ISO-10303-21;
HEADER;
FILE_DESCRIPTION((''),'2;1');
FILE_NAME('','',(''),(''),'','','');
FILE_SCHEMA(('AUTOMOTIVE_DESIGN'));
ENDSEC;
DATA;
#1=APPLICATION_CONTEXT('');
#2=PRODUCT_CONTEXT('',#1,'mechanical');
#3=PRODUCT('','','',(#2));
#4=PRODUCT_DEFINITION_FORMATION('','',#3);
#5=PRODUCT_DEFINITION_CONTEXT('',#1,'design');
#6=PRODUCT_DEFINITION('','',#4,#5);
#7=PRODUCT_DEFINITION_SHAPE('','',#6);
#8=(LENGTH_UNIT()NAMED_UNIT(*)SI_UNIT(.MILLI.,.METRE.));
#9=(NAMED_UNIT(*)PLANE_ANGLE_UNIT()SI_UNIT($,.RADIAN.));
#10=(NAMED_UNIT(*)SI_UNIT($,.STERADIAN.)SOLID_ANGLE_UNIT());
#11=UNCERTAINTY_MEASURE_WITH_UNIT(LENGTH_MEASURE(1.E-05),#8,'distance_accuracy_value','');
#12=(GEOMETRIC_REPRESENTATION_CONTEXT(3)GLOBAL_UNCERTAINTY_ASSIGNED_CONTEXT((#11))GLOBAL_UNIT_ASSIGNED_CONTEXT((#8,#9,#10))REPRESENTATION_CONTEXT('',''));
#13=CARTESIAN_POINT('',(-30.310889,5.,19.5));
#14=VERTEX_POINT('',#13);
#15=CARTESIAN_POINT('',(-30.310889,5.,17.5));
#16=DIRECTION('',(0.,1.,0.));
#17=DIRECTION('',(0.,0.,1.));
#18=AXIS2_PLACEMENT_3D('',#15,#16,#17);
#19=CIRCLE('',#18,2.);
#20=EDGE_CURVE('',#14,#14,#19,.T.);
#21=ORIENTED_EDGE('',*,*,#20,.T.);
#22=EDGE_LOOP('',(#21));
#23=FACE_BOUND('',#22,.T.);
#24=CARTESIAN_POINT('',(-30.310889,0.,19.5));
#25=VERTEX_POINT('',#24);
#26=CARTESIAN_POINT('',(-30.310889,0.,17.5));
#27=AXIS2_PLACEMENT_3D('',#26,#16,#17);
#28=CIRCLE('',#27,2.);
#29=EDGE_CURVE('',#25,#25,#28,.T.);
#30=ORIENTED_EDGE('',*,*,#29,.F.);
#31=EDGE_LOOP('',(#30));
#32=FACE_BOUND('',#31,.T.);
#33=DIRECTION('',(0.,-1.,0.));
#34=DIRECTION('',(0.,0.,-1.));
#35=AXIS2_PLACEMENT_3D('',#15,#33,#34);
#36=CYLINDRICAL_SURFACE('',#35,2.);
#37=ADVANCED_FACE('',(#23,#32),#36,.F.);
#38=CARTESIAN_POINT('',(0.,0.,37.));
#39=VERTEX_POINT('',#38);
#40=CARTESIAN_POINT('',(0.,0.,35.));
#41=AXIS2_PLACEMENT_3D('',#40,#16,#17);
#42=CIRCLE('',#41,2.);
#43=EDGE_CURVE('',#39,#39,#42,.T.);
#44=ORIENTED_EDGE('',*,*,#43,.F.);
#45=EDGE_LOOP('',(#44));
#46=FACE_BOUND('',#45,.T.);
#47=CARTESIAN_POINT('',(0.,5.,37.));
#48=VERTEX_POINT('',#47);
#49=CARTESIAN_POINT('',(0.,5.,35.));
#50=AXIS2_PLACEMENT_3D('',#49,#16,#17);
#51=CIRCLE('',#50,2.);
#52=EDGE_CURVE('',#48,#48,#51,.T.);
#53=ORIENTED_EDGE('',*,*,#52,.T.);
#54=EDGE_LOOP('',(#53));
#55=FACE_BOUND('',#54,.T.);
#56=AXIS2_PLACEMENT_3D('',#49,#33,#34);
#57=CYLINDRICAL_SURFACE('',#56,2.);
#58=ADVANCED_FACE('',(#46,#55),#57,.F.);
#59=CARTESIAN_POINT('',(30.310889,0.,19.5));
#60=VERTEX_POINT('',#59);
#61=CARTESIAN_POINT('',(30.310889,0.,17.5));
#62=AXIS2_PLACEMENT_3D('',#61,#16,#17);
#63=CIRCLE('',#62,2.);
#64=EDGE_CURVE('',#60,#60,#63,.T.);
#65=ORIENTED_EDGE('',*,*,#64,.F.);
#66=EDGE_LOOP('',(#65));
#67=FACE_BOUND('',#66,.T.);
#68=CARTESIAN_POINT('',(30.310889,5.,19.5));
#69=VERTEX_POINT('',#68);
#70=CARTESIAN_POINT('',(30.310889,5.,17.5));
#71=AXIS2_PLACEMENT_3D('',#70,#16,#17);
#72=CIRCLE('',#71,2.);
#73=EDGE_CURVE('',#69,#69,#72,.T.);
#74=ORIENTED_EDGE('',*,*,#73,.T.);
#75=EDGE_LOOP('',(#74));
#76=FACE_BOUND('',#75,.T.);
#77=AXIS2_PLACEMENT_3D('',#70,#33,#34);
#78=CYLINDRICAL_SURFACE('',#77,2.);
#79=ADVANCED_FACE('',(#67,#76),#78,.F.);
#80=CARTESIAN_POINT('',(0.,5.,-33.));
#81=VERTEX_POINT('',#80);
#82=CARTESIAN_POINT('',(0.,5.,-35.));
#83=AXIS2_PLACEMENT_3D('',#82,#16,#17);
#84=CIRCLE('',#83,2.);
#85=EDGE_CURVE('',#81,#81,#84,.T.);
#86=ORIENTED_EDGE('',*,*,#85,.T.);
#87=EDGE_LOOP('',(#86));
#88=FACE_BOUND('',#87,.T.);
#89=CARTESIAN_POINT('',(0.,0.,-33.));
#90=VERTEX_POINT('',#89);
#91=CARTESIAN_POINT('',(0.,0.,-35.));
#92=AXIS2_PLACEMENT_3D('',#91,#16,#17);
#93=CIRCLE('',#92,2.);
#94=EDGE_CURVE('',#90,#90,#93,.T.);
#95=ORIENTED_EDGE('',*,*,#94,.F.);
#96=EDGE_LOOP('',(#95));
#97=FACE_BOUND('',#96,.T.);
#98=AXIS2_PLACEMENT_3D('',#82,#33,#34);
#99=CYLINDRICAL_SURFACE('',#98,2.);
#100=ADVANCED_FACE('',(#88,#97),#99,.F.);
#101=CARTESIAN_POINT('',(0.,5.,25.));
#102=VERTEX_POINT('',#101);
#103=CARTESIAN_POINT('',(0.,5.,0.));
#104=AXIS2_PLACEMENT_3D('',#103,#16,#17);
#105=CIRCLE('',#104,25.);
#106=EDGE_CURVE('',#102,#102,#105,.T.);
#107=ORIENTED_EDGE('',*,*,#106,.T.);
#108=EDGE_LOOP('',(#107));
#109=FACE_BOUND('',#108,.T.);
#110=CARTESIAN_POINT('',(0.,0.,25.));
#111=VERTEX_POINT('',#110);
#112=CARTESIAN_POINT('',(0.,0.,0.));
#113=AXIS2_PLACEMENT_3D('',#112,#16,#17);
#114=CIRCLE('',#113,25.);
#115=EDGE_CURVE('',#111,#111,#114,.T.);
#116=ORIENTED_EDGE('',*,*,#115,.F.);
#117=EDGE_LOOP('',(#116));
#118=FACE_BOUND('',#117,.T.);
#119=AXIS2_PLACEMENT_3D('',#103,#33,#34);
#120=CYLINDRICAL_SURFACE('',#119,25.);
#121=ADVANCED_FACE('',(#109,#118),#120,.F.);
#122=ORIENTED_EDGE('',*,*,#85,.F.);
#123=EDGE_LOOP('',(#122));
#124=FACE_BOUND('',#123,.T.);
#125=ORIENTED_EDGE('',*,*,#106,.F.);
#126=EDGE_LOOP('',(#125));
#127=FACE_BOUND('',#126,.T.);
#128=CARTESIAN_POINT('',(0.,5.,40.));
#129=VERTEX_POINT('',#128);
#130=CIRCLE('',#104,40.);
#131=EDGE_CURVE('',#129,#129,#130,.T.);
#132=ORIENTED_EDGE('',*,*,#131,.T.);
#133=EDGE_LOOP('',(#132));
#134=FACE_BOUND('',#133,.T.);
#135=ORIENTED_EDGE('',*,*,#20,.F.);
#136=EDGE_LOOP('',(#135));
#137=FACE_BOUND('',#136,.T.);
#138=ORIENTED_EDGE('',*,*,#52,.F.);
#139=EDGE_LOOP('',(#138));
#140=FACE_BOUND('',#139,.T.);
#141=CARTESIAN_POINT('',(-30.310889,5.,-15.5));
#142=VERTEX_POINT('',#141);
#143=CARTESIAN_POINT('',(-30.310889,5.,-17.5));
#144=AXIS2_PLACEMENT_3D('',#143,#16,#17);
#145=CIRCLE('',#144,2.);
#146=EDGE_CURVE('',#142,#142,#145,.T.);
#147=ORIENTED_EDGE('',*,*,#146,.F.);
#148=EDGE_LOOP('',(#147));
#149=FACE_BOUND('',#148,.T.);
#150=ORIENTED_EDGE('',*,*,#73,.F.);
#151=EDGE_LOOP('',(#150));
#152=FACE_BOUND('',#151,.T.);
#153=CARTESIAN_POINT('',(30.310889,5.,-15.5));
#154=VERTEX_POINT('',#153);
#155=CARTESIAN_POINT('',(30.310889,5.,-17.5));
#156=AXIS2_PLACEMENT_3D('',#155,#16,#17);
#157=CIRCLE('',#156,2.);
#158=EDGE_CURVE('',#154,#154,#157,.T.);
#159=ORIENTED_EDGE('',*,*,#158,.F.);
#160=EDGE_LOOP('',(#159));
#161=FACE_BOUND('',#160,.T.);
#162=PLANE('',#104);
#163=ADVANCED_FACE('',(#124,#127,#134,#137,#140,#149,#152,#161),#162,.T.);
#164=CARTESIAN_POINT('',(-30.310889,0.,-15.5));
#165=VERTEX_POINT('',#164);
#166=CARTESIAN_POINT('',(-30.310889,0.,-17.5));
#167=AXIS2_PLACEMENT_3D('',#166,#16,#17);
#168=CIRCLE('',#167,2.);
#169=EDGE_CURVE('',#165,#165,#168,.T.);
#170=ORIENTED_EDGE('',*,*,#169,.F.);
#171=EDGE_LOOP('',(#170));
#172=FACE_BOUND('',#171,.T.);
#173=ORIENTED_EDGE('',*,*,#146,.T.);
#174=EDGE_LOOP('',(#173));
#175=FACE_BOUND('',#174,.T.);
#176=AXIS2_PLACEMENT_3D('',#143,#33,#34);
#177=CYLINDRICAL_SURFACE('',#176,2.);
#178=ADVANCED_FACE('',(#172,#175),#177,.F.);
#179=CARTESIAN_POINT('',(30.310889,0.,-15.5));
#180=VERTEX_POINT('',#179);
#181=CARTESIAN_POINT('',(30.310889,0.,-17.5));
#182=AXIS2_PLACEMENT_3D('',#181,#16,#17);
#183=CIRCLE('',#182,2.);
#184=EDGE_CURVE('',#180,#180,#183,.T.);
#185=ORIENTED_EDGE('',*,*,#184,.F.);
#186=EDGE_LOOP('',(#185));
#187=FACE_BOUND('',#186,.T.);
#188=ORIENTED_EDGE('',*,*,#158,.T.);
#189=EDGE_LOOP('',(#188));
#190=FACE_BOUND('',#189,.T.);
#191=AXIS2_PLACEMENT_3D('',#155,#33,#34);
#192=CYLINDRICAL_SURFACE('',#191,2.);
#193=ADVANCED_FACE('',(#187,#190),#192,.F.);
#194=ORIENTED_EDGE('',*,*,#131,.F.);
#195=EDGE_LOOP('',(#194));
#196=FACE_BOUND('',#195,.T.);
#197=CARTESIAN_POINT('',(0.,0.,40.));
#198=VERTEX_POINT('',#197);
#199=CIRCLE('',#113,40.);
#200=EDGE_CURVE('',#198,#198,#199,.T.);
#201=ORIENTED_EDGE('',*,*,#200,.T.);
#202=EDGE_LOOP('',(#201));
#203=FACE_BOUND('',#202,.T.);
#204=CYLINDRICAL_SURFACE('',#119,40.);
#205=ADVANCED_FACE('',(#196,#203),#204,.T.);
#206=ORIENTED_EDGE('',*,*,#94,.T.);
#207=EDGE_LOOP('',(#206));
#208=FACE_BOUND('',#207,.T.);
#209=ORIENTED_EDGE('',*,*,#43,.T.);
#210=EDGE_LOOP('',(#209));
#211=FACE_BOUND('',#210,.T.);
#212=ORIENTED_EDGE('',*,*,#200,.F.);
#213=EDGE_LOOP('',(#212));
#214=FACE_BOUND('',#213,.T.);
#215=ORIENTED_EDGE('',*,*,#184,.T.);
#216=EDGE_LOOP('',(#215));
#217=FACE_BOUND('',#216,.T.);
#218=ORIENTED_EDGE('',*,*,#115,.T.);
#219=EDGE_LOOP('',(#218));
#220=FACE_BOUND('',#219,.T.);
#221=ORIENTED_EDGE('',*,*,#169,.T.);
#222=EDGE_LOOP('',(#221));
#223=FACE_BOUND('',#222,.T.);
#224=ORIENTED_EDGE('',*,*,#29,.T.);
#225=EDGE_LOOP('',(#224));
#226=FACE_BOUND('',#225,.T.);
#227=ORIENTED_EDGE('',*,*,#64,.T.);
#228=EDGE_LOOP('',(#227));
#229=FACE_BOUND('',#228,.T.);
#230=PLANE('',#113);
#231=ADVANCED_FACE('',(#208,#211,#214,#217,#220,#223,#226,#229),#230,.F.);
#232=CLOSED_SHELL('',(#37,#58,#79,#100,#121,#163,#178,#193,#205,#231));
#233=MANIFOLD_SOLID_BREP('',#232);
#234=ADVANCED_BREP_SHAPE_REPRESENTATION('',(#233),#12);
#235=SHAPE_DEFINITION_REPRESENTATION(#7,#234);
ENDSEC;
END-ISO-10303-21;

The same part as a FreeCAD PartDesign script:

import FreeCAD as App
import Part
import Sketcher

doc = App.newDocument("Part")
body = doc.addObject("PartDesign::Body", "Body")

sketch1 = doc.addObject("Sketcher::SketchObject", "Sketch")
body.addObject(sketch1)
sketch1.AttachmentSupport = (doc.XZ_Plane, [""])
sketch1.MapMode = "FlatFace"
sketch1.addGeometry([
    Part.Circle(App.Vector(0, 0, 0), App.Vector(0, 0, 1), 40),
    Part.Circle(App.Vector(-30.310889, -17.5, 0), App.Vector(0, 0, 1), 2),
    Part.Circle(App.Vector(-30.310889, 17.5, 0), App.Vector(0, 0, 1), 2),
    Part.Circle(App.Vector(0, -35, 0), App.Vector(0, 0, 1), 2),
    Part.Circle(App.Vector(30.310889, -17.5, 0), App.Vector(0, 0, 1), 2),
    Part.Circle(App.Vector(0, 0, 0), App.Vector(0, 0, 1), 25),
    Part.Circle(App.Vector(0, 35, 0), App.Vector(0, 0, 1), 2),
    Part.Circle(App.Vector(30.310889, 17.5, 0), App.Vector(0, 0, 1), 2),
], False)
sketch1.addConstraint([
    Sketcher.Constraint("Coincident", 0, 3, -1, 1),
    Sketcher.Constraint("Coincident", 5, 3, -1, 1),
    Sketcher.Constraint("Equal", 1, 2),
    Sketcher.Constraint("Equal", 2, 3),
    Sketcher.Constraint("Equal", 3, 4),
    Sketcher.Constraint("Equal", 4, 6),
    Sketcher.Constraint("Equal", 6, 7),
    Sketcher.Constraint("Symmetric", 2, 3, 4, 3, -1, 1),
    Sketcher.Constraint("Symmetric", 3, 3, 6, 3, -1, 1),
    Sketcher.Constraint("Symmetric", 1, 3, 7, 3, -1, 1),
    Sketcher.Constraint("Symmetric", 1, 3, 4, 3, -2),
    Sketcher.Constraint("PointOnObject", 3, 3, -2),
    Sketcher.Constraint("Diameter", 0, 80.0),
    Sketcher.Constraint("Diameter", 1, 4.0),
    Sketcher.Constraint("Diameter", 5, 50.0),
    Sketcher.Constraint("DistanceY", 3, 3, -1, 1, 35.0),
    Sketcher.Constraint("DistanceY", 1, 3, 2, 3, 35.0),
    Sketcher.Constraint("DistanceX", 1, 3, -1, 1, 30.310889),
])
pad1 = doc.addObject("PartDesign::Pad", "Pad")
body.addObject(pad1)
pad1.Profile = sketch1
pad1.Length = 5
pad1.Reversed = True

doc.recompute()
